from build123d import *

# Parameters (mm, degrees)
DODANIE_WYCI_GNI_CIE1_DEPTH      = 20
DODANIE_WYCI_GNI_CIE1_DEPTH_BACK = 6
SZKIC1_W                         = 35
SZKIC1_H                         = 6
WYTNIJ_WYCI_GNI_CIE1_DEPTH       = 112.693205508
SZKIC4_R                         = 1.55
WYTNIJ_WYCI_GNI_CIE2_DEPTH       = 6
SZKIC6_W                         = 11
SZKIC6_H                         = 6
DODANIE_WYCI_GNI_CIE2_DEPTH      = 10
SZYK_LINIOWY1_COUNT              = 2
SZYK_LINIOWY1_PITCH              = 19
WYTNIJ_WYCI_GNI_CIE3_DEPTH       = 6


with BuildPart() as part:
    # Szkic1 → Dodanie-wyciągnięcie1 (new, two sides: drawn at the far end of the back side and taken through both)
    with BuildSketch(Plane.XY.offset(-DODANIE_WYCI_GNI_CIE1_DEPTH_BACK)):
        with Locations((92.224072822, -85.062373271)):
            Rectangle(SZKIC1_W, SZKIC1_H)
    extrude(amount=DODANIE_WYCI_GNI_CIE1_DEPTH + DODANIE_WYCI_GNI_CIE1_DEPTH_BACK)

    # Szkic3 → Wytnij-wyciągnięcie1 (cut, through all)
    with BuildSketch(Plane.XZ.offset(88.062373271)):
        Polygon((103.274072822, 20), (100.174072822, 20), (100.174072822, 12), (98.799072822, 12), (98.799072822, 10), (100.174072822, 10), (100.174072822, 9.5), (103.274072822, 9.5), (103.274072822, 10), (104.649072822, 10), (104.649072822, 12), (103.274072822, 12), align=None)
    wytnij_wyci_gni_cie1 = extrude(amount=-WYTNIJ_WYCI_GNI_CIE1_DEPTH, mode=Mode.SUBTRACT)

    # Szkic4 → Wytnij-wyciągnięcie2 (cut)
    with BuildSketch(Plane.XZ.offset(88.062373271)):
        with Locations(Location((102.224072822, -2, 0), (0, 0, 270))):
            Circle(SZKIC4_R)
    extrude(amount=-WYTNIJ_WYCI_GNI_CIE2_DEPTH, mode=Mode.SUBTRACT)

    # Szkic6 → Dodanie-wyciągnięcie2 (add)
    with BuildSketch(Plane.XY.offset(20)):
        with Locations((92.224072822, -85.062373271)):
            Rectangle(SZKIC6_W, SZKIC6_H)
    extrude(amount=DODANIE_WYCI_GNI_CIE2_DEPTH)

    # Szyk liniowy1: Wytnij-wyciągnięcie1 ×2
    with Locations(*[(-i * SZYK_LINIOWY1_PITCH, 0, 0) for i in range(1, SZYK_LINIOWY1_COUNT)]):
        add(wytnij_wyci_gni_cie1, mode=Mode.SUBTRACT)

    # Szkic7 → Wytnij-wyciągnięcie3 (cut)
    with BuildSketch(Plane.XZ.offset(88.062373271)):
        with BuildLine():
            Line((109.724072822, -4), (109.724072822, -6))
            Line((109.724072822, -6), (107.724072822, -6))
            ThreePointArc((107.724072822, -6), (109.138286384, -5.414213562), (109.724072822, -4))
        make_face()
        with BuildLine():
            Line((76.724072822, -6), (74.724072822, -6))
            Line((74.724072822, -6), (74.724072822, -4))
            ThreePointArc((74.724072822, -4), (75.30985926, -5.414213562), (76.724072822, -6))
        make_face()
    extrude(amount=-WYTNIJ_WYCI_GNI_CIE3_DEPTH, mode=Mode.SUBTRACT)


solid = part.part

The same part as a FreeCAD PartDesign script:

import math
import FreeCAD as App
import Part
import Sketcher

V = App.Vector

doc = App.newDocument("Part")
body = doc.addObject("PartDesign::Body", "Body")

sketch1 = body.newObject("Sketcher::SketchObject", "Sketch")
sketch1.AttachmentSupport = (doc.getObject("XY_Plane"), [""])
sketch1.MapMode = "FlatFace"
sketch1.addGeometry([
    Part.LineSegment(V(75, -82, 0), V(75, -88, 0)),
    Part.LineSegment(V(75, -88, 0), V(110, -88, 0)),
    Part.LineSegment(V(110, -88, 0), V(110, -82, 0)),
    Part.LineSegment(V(110, -82, 0), V(75, -82, 0)),
], False)
sketch1.addConstraint([
    Sketcher.Constraint("Coincident", 0, 2, 1, 1),
    Sketcher.Constraint("Coincident", 1, 2, 2, 1),
    Sketcher.Constraint("Coincident", 2, 2, 3, 1),
    Sketcher.Constraint("Coincident", 3, 2, 0, 1),
    Sketcher.Constraint("Vertical", 0),
    Sketcher.Constraint("Horizontal", 1),
    Sketcher.Constraint("Vertical", 2),
    Sketcher.Constraint("Horizontal", 3),
    Sketcher.Constraint("DistanceX", 1, 1, 1, 2, 35.0),
    Sketcher.Constraint("DistanceY", 0, 2, 0, 1, 6.0),
    Sketcher.Constraint("DistanceX", -1, 1, 0, 2, 74.724073),
    Sketcher.Constraint("DistanceY", 0, 2, -1, 1, 88.062373),
])
pad1 = body.newObject("PartDesign::Pad", "Pad")
pad1.Profile = sketch1
pad1.Type = "TwoLengths"
pad1.Length = 20
pad1.Length2 = 6

sketch2 = body.newObject("Sketcher::SketchObject", "Sketch001")
sketch2.AttachmentSupport = (doc.getObject("XZ_Plane"), [""])
sketch2.MapMode = "FlatFace"
sketch2.AttachmentOffset = App.Placement(V(0, 0, 88.062373), App.Rotation())
sketch2.addGeometry([
    Part.LineSegment(V(103.3, 20, 0), V(100.2, 20, 0)),
    Part.LineSegment(V(100.2, 20, 0), V(100.2, 12, 0)),
    Part.LineSegment(V(100.2, 12, 0), V(98.8, 12, 0)),
    Part.LineSegment(V(98.8, 12, 0), V(98.8, 10, 0)),
    Part.LineSegment(V(98.8, 10, 0), V(100.2, 10, 0)),
    Part.LineSegment(V(100.2, 10, 0), V(100.2, 9.5, 0)),
    Part.LineSegment(V(100.2, 9.5, 0), V(103.3, 9.5, 0)),
    Part.LineSegment(V(103.3, 9.5, 0), V(103.3, 10, 0)),
    Part.LineSegment(V(103.3, 10, 0), V(104.6, 10, 0)),
    Part.LineSegment(V(104.6, 10, 0), V(104.6, 12, 0)),
    Part.LineSegment(V(104.6, 12, 0), V(103.3, 12, 0)),
    Part.LineSegment(V(103.3, 12, 0), V(103.3, 20, 0)),
], False)
sketch2.addConstraint([
    Sketcher.Constraint("Coincident", 0, 2, 1, 1),
    Sketcher.Constraint("Coincident", 1, 2, 2, 1),
    Sketcher.Constraint("Coincident", 2, 2, 3, 1),
    Sketcher.Constraint("Coincident", 3, 2, 4, 1),
    Sketcher.Constraint("Coincident", 4, 2, 5, 1),
    Sketcher.Constraint("Coincident", 5, 2, 6, 1),
    Sketcher.Constraint("Coincident", 6, 2, 7, 1),
    Sketcher.Constraint("Coincident", 7, 2, 8, 1),
    Sketcher.Constraint("Coincident", 8, 2, 9, 1),
    Sketcher.Constraint("Coincident", 9, 2, 10, 1),
    Sketcher.Constraint("Coincident", 10, 2, 11, 1),
    Sketcher.Constraint("Coincident", 11, 2, 0, 1),
    Sketcher.Constraint("Horizontal", 0),
    Sketcher.Constraint("Vertical", 1),
    Sketcher.Constraint("Horizontal", 2),
    Sketcher.Constraint("Vertical", 3),
    Sketcher.Constraint("Horizontal", 4),
    Sketcher.Constraint("Vertical", 5),
    Sketcher.Constraint("Horizontal", 6),
    Sketcher.Constraint("Vertical", 7),
    Sketcher.Constraint("Horizontal", 8),
    Sketcher.Constraint("Vertical", 9),
    Sketcher.Constraint("Horizontal", 10),
    Sketcher.Constraint("Vertical", 11),
    Sketcher.Constraint("Horizontal", 4, 2, 7, 2),
    Sketcher.Constraint("Horizontal", 2, 2, 9, 2),
    Sketcher.Constraint("Vertical", 1, 2, 4, 2),
    Sketcher.Constraint("Vertical", 7, 2, 10, 2),
    Sketcher.Constraint("Equal", 4, 8),
    Sketcher.Constraint("DistanceY", 1, 2, 1, 1, 8.0),
    Sketcher.Constraint("DistanceY", 3, 2, 3, 1, 2.0),
    Sketcher.Constraint("DistanceX", 0, 2, 0, 1, 3.1),
    Sketcher.Constraint("DistanceY", 5, 2, 5, 1, 0.5),
    Sketcher.Constraint("DistanceY", -1, 1, 0, 2, 20.0),
    Sketcher.Constraint("DistanceX", 2, 2, 2, 1, 1.375),
    Sketcher.Constraint("DistanceX", -1, 1, 0, 2, 100.174073),
])
pocket1 = body.newObject("PartDesign::Pocket", "Pocket")
pocket1.Profile = sketch2
pocket1.Type = "ThroughAll"

sketch3 = body.newObject("Sketcher::SketchObject", "Sketch002")
sketch3.AttachmentSupport = (doc.getObject("XZ_Plane"), [""])
sketch3.MapMode = "FlatFace"
sketch3.AttachmentOffset = App.Placement(V(0, 0, 88.062373), App.Rotation())
sketch3.addGeometry(Part.Circle(V(102.2, -2, 0), V(0, 0, 1), 1.6), False)
sketch3.addConstraint([
    Sketcher.Constraint("Diameter", 0, 3.1),
    Sketcher.Constraint("DistanceY", 0, 3, -1, 1, 2.0),
    Sketcher.Constraint("DistanceX", -1, 1, 0, 3, 102.224073),
])
pocket2 = body.newObject("PartDesign::Pocket", "Pocket001")
pocket2.Profile = sketch3
pocket2.Length = 6

sketch4 = body.newObject("Sketcher::SketchObject", "Sketch003")
sketch4.AttachmentSupport = (doc.getObject("XY_Plane"), [""])
sketch4.MapMode = "FlatFace"
sketch4.AttachmentOffset = App.Placement(V(0, 0, 20), App.Rotation())
sketch4.addGeometry([
    Part.LineSegment(V(87, -82, 0), V(87, -88, 0)),
    Part.LineSegment(V(87, -88, 0), V(98, -88, 0)),
    Part.LineSegment(V(98, -88, 0), V(98, -82, 0)),
    Part.LineSegment(V(98, -82, 0), V(87, -82, 0)),
], False)
sketch4.addConstraint([
    Sketcher.Constraint("Coincident", 0, 2, 1, 1),
    Sketcher.Constraint("Coincident", 1, 2, 2, 1),
    Sketcher.Constraint("Coincident", 2, 2, 3, 1),
    Sketcher.Constraint("Coincident", 3, 2, 0, 1),
    Sketcher.Constraint("Vertical", 0),
    Sketcher.Constraint("Horizontal", 1),
    Sketcher.Constraint("Vertical", 2),
    Sketcher.Constraint("Horizontal", 3),
    Sketcher.Constraint("DistanceX", 1, 1, 1, 2, 11.0),
    Sketcher.Constraint("DistanceY", 0, 2, 0, 1, 6.0),
    Sketcher.Constraint("DistanceX", -1, 1, 0, 2, 86.724073),
    Sketcher.Constraint("DistanceY", 0, 2, -1, 1, 88.062373),
])
pad2 = body.newObject("PartDesign::Pad", "Pad001")
pad2.Profile = sketch4
pad2.Length = 10
doc.recompute()

linearpattern = body.newObject("PartDesign::LinearPattern", "LinearPattern")
linearpattern.Originals = [pocket1]
linearpattern.Direction = (doc.getObject("X_Axis"), [""])
linearpattern.Mode = "offset"
linearpattern.Offset = 19
linearpattern.Occurrences = 2
linearpattern.Reversed = True
body.Tip = linearpattern

sketch5 = body.newObject("Sketcher::SketchObject", "Sketch004")
sketch5.AttachmentSupport = (doc.getObject("XZ_Plane"), [""])
sketch5.MapMode = "FlatFace"
sketch5.AttachmentOffset = App.Placement(V(0, 0, 88.062373), App.Rotation())
sketch5.addGeometry([
    Part.LineSegment(V(109.7, -6, 0), V(109.7, -4, 0)),
    Part.ArcOfCircle(Part.Circle(V(107.7, -4, 0), V(0, 0, 1), 2), math.radians(-90), math.radians(0)),
    Part.LineSegment(V(107.7, -6, 0), V(109.7, -6, 0)),
    Part.LineSegment(V(74.7, -6, 0), V(76.7, -6, 0)),
    Part.ArcOfCircle(Part.Circle(V(76.7, -4, 0), V(0, 0, 1), 2), math.radians(-180), math.radians(-90)),
    Part.LineSegment(V(74.7, -4, 0), V(74.7, -6, 0)),
], False)
sketch5.addConstraint([
    Sketcher.Constraint("Tangent", 0, 2, 1, 2),
    Sketcher.Constraint("Tangent", 1, 1, 2, 1),
    Sketcher.Constraint("Coincident", 2, 2, 0, 1),
    Sketcher.Constraint("Tangent", 3, 2, 4, 2),
    Sketcher.Constraint("Tangent", 4, 1, 5, 1),
    Sketcher.Constraint("Coincident", 5, 2, 3, 1),
    Sketcher.Constraint("Vertical", 0),
    Sketcher.Constraint("Horizontal", 2),
    Sketcher.Constraint("Horizontal", 3),
    Sketcher.Constraint("Vertical", 5),
    Sketcher.Constraint("Equal", 1, 4),
    Sketcher.Constraint("Horizontal", 1, 3, 4, 3),
    Sketcher.Constraint("Radius", 1, 2.0),
    Sketcher.Constraint("DistanceY", 1, 3, -1, 1, 4.0),
    Sketcher.Constraint("DistanceX", 4, 3, 1, 3, 31.0),
    Sketcher.Constraint("DistanceX", -1, 1, 1, 3, 107.724073),
])
pocket3 = body.newObject("PartDesign::Pocket", "Pocket002")
pocket3.Profile = sketch5
pocket3.Length = 6

doc.recompute()
